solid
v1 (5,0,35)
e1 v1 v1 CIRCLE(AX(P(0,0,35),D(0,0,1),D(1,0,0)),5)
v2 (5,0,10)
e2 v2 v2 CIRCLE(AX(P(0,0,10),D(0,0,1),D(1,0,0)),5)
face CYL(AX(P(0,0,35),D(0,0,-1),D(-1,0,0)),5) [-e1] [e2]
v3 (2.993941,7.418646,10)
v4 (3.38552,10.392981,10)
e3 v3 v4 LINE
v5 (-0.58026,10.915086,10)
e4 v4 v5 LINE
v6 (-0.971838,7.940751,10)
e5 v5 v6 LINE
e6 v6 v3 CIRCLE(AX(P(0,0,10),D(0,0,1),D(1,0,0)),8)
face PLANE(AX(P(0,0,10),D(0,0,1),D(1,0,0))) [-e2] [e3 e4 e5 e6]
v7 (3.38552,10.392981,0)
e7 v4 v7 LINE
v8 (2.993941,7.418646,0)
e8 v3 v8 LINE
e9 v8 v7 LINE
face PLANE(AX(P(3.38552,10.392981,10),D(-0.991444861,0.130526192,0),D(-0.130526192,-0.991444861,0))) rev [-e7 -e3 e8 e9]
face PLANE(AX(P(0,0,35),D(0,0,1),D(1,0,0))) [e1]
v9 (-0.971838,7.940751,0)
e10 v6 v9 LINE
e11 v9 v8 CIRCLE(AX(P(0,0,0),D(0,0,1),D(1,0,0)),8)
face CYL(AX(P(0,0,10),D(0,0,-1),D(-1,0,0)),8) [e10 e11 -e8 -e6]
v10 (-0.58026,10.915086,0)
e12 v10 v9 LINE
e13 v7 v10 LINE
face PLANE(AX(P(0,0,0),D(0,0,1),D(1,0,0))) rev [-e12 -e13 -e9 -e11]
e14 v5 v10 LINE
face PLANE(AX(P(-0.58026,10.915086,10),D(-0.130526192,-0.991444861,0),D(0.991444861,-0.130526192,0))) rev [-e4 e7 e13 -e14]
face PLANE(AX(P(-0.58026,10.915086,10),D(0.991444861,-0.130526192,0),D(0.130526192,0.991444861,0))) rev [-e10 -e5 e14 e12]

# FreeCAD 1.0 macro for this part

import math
import FreeCAD as App
import Part
import Sketcher
from FreeCAD import Vector
Q = App.Units.Quantity

doc = App.newDocument("Part")
body = doc.addObject("PartDesign::Body", "Body")

sketch1 = body.newObject("Sketcher::SketchObject", "Sketch")
sketch1.AttachmentSupport = (doc.getObject("XY_Plane"), [""])
sketch1.MapMode = "FlatFace"
sketch1.addGeometry([
    Part.LineSegment(Vector(3.4, 10.4, 0), Vector(-0.6, 10.9, 0)),
    Part.LineSegment(Vector(-0.6, 10.9, 0), Vector(-1, 7.9, 0)),
    Part.ArcOfCircle(Part.Circle(Vector(0, 0, 0), Vector(0, 0, 1), 8), math.radians(97), math.radians(428)),
    Part.LineSegment(Vector(3, 7.4, 0), Vector(3.4, 10.4, 0)),
], False)
sketch1.addConstraint([
    Sketcher.Constraint("Coincident", 0, 2, 1, 1),
    Sketcher.Constraint("Coincident", 1, 2, 2, 1),
    Sketcher.Constraint("Coincident", 2, 2, 3, 1),
    Sketcher.Constraint("Coincident", 3, 2, 0, 1),
    Sketcher.Constraint("Coincident", 2, 3, -1, 1),
    Sketcher.Constraint("Perpendicular", 0, 1),
    Sketcher.Constraint("Parallel", 1, 3),
    Sketcher.Constraint("Equal", 1, 3),
    Sketcher.Constraint("Radius", 2, Q("8 mm")),
    Sketcher.Constraint("Distance", 0, Q("4 mm")),
    Sketcher.Constraint("Distance", 1, Q("3 mm")),
    Sketcher.Constraint("Angle", 0, Q("172.5 deg")),
])
pad1 = body.newObject("PartDesign::Pad", "Pad")
pad1.Profile = sketch1
pad1.Length = 10

sketch2 = body.newObject("Sketcher::SketchObject", "Sketch001")
sketch2.AttachmentSupport = (doc.getObject("XY_Plane"), [""])
sketch2.MapMode = "FlatFace"
sketch2.AttachmentOffset = App.Placement(Vector(0, 0, 10), App.Rotation())
sketch2.addGeometry(Part.Circle(Vector(0, 0, 0), Vector(0, 0, 1), 5), False)
sketch2.addConstraint([
    Sketcher.Constraint("Coincident", 0, 3, -1, 1),
    Sketcher.Constraint("Diameter", 0, Q("10 mm")),
])
pad2 = body.newObject("PartDesign::Pad", "Pad001")
pad2.Profile = sketch2
pad2.Length = 25

doc.recompute()
